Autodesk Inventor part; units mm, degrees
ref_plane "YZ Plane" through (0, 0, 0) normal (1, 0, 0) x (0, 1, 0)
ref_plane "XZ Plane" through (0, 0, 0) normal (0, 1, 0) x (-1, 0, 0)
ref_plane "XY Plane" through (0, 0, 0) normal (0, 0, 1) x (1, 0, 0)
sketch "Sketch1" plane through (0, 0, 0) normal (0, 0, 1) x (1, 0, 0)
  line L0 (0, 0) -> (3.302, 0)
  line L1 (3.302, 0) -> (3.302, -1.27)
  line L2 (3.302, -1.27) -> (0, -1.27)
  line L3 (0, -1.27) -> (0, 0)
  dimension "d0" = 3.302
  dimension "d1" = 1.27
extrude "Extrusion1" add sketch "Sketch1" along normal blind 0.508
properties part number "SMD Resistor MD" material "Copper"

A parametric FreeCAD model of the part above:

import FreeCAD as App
import Part
import Sketcher

V = App.Vector
Q = App.Units.Quantity

doc = App.newDocument("Part")
body = doc.addObject("PartDesign::Body", "Body")

# Sketch on XY plane
sketch1 = body.newObject("Sketcher::SketchObject", "Sketch")
sketch1.AttachmentSupport = (doc.getObject("XY_Plane"), [""])
sketch1.MapMode = "FlatFace"
sketch1.addGeometry([
    Part.LineSegment(V(3.302, 0, 0), V(0, 0, 0)),
    Part.LineSegment(V(0, 0, 0), V(0, -1.27, 0)),
    Part.LineSegment(V(0, -1.27, 0), V(3.302, -1.27, 0)),
    Part.LineSegment(V(3.302, -1.27, 0), V(3.302, 0, 0)),
], False)
sketch1.addConstraint([
    Sketcher.Constraint("Coincident", 0, 2, 1, 1),
    Sketcher.Constraint("Coincident", 1, 2, 2, 1),
    Sketcher.Constraint("Coincident", 2, 2, 3, 1),
    Sketcher.Constraint("Coincident", 3, 2, 0, 1),
    Sketcher.Constraint("Horizontal", 0),
    Sketcher.Constraint("Vertical", 1),
    Sketcher.Constraint("Horizontal", 2),
    Sketcher.Constraint("Vertical", 3),
    Sketcher.Constraint("Coincident", 0, 2, -1, 1),
    Sketcher.Constraint("DistanceX", 0, 2, 0, 1, Q("0.13 in")),
    Sketcher.Constraint("DistanceY", 1, 2, 1, 1, Q("0.05 in")),
])
pad1 = body.newObject("PartDesign::Pad", "Pad")
pad1.Profile = sketch1
pad1.Length = Q("0.02 in")

doc.recompute()
